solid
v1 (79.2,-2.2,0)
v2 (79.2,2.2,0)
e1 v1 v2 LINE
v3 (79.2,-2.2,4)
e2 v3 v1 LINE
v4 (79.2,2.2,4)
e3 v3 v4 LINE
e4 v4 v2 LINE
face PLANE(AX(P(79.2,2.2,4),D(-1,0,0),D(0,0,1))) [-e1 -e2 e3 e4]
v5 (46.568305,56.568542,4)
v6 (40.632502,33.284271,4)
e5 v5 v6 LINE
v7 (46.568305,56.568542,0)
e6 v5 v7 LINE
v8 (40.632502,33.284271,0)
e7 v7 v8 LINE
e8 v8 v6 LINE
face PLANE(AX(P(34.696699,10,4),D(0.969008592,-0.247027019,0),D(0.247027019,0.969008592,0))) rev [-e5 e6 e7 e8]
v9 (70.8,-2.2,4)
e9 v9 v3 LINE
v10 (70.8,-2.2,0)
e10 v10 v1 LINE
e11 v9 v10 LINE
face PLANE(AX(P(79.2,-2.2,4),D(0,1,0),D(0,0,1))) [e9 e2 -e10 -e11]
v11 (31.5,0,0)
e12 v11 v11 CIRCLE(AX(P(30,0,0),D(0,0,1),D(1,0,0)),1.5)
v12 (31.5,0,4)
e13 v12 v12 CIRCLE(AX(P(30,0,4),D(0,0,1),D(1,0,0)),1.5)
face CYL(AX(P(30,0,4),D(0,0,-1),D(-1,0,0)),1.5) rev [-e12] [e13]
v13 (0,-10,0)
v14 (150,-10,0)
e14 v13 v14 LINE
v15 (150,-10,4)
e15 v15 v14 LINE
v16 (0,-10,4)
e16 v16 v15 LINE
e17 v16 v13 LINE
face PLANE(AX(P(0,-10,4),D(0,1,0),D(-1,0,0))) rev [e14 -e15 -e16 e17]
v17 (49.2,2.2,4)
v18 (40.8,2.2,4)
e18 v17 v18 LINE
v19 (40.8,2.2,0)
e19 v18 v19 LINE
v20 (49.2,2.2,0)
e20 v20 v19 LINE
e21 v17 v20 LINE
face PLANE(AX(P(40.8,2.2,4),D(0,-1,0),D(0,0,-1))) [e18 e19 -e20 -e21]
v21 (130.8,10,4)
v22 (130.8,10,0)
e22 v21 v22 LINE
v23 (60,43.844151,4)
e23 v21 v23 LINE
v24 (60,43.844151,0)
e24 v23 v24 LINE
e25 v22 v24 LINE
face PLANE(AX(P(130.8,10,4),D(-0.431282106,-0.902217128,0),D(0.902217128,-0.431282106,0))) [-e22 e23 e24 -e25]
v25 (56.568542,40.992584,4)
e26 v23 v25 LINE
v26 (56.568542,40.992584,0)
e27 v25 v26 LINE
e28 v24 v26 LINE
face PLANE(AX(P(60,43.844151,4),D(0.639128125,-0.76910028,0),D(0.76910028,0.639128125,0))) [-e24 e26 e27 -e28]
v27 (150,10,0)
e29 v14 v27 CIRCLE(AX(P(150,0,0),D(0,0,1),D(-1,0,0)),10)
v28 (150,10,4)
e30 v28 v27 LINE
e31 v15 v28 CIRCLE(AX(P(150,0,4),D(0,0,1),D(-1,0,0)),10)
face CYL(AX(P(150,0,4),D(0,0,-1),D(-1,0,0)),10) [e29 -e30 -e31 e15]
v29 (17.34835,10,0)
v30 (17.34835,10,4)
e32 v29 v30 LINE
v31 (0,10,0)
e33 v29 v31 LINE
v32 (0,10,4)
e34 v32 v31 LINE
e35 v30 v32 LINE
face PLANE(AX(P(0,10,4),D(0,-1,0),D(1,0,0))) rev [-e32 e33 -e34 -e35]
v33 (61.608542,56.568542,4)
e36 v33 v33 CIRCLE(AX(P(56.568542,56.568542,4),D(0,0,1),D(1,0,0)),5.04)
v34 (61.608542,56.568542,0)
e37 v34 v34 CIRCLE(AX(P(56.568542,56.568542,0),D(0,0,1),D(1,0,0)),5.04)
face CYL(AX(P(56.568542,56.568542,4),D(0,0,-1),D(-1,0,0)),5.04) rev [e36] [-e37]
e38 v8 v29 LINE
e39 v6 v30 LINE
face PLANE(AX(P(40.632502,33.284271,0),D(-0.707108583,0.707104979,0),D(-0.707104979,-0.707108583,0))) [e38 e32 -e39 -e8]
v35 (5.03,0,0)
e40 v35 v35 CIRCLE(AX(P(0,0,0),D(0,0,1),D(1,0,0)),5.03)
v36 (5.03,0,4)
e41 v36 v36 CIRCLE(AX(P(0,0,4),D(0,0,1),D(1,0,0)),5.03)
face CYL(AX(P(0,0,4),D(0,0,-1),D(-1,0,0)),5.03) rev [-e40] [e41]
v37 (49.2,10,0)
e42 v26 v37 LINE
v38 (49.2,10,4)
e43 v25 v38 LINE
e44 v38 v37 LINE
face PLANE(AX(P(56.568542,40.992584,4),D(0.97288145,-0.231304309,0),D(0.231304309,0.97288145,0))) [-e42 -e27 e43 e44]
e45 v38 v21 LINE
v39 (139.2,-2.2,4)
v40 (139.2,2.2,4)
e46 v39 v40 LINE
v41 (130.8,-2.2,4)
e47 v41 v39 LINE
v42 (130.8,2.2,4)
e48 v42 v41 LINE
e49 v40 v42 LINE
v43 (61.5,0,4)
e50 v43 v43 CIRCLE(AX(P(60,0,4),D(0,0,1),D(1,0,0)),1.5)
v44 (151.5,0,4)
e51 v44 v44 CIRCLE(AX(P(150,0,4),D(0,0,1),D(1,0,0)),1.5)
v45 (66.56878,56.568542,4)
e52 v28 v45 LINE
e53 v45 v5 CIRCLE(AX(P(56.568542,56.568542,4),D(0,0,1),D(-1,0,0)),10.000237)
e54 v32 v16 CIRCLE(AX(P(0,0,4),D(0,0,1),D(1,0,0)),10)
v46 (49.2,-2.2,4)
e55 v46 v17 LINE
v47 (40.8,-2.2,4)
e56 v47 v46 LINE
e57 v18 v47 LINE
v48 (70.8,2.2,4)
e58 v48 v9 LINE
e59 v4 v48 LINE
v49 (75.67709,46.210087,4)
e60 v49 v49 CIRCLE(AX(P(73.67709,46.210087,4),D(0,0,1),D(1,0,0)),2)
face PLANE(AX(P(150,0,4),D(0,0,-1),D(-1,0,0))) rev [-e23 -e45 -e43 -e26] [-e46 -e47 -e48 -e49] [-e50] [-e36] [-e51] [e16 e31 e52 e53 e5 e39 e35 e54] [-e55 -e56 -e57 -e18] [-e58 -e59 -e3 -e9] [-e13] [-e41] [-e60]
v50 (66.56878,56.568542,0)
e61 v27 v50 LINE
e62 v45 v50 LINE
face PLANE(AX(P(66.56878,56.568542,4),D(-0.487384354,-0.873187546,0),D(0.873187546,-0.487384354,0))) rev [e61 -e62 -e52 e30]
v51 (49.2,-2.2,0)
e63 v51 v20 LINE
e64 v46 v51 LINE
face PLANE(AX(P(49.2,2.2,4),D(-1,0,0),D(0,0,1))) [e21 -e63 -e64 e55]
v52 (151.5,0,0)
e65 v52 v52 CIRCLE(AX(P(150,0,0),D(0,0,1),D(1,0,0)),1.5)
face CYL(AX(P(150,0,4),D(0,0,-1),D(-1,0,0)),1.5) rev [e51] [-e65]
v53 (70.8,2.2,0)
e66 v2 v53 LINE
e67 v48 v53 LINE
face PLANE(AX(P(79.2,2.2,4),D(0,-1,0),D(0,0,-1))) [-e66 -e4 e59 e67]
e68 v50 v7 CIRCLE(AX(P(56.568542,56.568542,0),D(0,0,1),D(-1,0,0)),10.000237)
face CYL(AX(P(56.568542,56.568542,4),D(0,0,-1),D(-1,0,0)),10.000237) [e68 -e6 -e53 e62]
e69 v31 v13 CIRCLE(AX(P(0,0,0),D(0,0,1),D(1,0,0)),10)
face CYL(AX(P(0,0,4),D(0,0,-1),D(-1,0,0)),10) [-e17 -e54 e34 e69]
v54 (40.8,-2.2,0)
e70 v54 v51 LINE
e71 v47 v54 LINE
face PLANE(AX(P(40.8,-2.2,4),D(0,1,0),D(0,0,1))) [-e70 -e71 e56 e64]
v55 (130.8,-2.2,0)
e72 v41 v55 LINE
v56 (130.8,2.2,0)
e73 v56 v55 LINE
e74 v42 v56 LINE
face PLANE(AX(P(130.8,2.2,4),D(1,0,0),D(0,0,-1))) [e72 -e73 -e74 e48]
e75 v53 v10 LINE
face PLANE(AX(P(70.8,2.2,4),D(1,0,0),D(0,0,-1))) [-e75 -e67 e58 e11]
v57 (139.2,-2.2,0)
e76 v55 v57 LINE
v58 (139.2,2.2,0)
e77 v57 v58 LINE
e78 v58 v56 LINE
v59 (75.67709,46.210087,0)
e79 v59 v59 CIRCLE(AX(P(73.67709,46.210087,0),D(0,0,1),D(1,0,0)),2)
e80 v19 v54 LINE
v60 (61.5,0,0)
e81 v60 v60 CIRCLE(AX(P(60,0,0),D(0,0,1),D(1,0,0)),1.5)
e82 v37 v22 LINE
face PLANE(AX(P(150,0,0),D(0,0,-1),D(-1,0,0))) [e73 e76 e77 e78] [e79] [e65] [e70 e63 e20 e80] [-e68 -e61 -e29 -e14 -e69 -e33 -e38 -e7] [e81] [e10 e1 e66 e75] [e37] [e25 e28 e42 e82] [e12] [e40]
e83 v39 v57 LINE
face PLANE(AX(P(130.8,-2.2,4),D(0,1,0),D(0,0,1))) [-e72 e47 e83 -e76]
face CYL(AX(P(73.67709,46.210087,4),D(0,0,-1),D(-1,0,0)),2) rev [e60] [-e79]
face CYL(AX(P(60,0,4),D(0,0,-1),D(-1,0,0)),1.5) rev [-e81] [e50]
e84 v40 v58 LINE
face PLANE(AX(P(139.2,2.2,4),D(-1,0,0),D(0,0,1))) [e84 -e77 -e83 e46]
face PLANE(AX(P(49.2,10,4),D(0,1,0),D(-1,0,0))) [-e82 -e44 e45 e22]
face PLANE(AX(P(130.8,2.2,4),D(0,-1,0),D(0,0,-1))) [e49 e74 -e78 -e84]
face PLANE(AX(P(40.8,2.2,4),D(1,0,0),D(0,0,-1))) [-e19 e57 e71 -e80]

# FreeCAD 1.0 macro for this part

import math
import FreeCAD as App
import Part
import Sketcher
Q = App.Units.Quantity

doc = App.newDocument("Part")
body = doc.addObject("PartDesign::Body", "Body")

# Sketch on XY plane
sketch1 = body.newObject("Sketcher::SketchObject", "Sketch")
sketch1.AttachmentSupport = (doc.getObject("XY_Plane"), [""])
sketch1.MapMode = "FlatFace"
sketch1.addGeometry([
    Part.LineSegment(App.Vector(34.696699, 10, 0), App.Vector(0, 10, 0)),  # 0
    Part.ArcOfCircle(Part.Circle(App.Vector(0, 0, 0), App.Vector(0, 0, 1), 10), math.radians(90), math.radians(270)),  # 1
    Part.LineSegment(App.Vector(0, -10, 0), App.Vector(150, -10, 0)),  # 2
    Part.ArcOfCircle(Part.Circle(App.Vector(150, 0, 0), App.Vector(0, 0, 1), 10), math.radians(-90), math.radians(90)),  # 3
    Part.LineSegment(App.Vector(150, 10, 0), App.Vector(66.56878, 56.568542, 0)),  # 4
    Part.ArcOfCircle(Part.Circle(App.Vector(56.568542, 56.568542, 0), App.Vector(0, 0, 1), 10.000237), math.radians(0), math.radians(180)),  # 5
    Part.LineSegment(App.Vector(46.568305, 56.568542, 0), App.Vector(34.696699, 10, 0)),  # 6
    Part.Circle(App.Vector(150, 0, 0), App.Vector(0, 0, 1), 1.5),  # 7
    Part.LineSegment(App.Vector(130.8, -2.2, 0), App.Vector(130.8, 2.2, 0)),  # 8
    Part.LineSegment(App.Vector(130.8, 2.2, 0), App.Vector(139.2, 2.2, 0)),  # 9
    Part.LineSegment(App.Vector(139.2, 2.2, 0), App.Vector(139.2, -2.2, 0)),  # 10
    Part.LineSegment(App.Vector(139.2, -2.2, 0), App.Vector(130.8, -2.2, 0)),  # 11
    Part.LineSegment(App.Vector(70.8, -2.2, 0), App.Vector(70.8, 2.2, 0)),  # 12
    Part.LineSegment(App.Vector(70.8, 2.2, 0), App.Vector(79.2, 2.2, 0)),  # 13
    Part.LineSegment(App.Vector(79.2, 2.2, 0), App.Vector(79.2, -2.2, 0)),  # 14
    Part.LineSegment(App.Vector(79.2, -2.2, 0), App.Vector(70.8, -2.2, 0)),  # 15
    Part.LineSegment(App.Vector(56.568542, 40.992584, 0), App.Vector(60, 43.844151, 0)),  # 16
    Part.LineSegment(App.Vector(60, 43.844151, 0), App.Vector(130.8, 10, 0)),  # 17
    Part.LineSegment(App.Vector(130.8, 10, 0), App.Vector(49.2, 10, 0)),  # 18
    Part.LineSegment(App.Vector(49.2, 10, 0), App.Vector(56.568542, 40.992584, 0)),  # 19
    Part.Circle(App.Vector(60, 0, 0), App.Vector(0, 0, 1), 1.5),  # 20
    Part.LineSegment(App.Vector(40.8, -2.2, 0), App.Vector(40.8, 2.2, 0)),  # 21
    Part.LineSegment(App.Vector(40.8, 2.2, 0), App.Vector(49.2, 2.2, 0)),  # 22
    Part.LineSegment(App.Vector(49.2, 2.2, 0), App.Vector(49.2, -2.2, 0)),  # 23
    Part.LineSegment(App.Vector(49.2, -2.2, 0), App.Vector(40.8, -2.2, 0)),  # 24
    Part.Circle(App.Vector(30, 0, 0), App.Vector(0, 0, 1), 1.5),  # 25
    Part.Circle(App.Vector(0, 0, 0), App.Vector(0, 0, 1), 5.03),  # 26
    Part.Circle(App.Vector(73.67709, 46.210087, 0), App.Vector(0, 0, 1), 2),  # 27
    Part.Circle(App.Vector(56.568542, 56.568542, 0), App.Vector(0, 0, 1), 5.04),  # 28
], False)
sketch1.addConstraint([
    Sketcher.Constraint("Tangent", 0, 2, 1, 1),
    Sketcher.Constraint("Tangent", 1, 2, 2, 1),
    Sketcher.Constraint("Tangent", 2, 2, 3, 1),
    Sketcher.Constraint("Coincident", 3, 2, 4, 1),
    Sketcher.Constraint("Coincident", 4, 2, 5, 1),
    Sketcher.Constraint("Coincident", 5, 2, 6, 1),
    Sketcher.Constraint("Coincident", 6, 2, 0, 1),
    Sketcher.Constraint("Coincident", 8, 2, 9, 1),
    Sketcher.Constraint("Coincident", 9, 2, 10, 1),
    Sketcher.Constraint("Coincident", 10, 2, 11, 1),
    Sketcher.Constraint("Coincident", 11, 2, 8, 1),
    Sketcher.Constraint("Coincident", 12, 2, 13, 1),
    Sketcher.Constraint("Coincident", 13, 2, 14, 1),
    Sketcher.Constraint("Coincident", 14, 2, 15, 1),
    Sketcher.Constraint("Coincident", 15, 2, 12, 1),
    Sketcher.Constraint("Coincident", 16, 2, 17, 1),
    Sketcher.Constraint("Coincident", 17, 2, 18, 1),
    Sketcher.Constraint("Coincident", 18, 2, 19, 1),
    Sketcher.Constraint("Coincident", 19, 2, 16, 1),
    Sketcher.Constraint("Coincident", 21, 2, 22, 1),
    Sketcher.Constraint("Coincident", 22, 2, 23, 1),
    Sketcher.Constraint("Coincident", 23, 2, 24, 1),
    Sketcher.Constraint("Coincident", 24, 2, 21, 1),
    Sketcher.Constraint("Horizontal", 0),
    Sketcher.Constraint("Horizontal", 2),
    Sketcher.Constraint("Vertical", 8),
    Sketcher.Constraint("Horizontal", 9),
    Sketcher.Constraint("Vertical", 10),
    Sketcher.Constraint("Horizontal", 11),
    Sketcher.Constraint("Vertical", 12),
    Sketcher.Constraint("Horizontal", 13),
    Sketcher.Constraint("Vertical", 14),
    Sketcher.Constraint("Horizontal", 15),
    Sketcher.Constraint("Horizontal", 18),
    Sketcher.Constraint("Vertical", 21),
    Sketcher.Constraint("Horizontal", 22),
    Sketcher.Constraint("Vertical", 23),
    Sketcher.Constraint("Horizontal", 24),
    Sketcher.Constraint("Coincident", 1, 3, -1, 1),
    Sketcher.Constraint("Coincident", 26, 3, -1, 1),
    Sketcher.Constraint("Coincident", 7, 3, 3, 3),
    Sketcher.Constraint("Coincident", 28, 3, 5, 3),
    Sketcher.Constraint("Equal", 1, 3),
    Sketcher.Constraint("Equal", 7, 20),
    Sketcher.Constraint("Equal", 20, 25),
    Sketcher.Constraint("PointOnObject", 20, 3, -1),
    Sketcher.Constraint("PointOnObject", 25, 3, -1),
    Sketcher.Constraint("Horizontal", 28, 3, 4, 2),
    Sketcher.Constraint("Horizontal", 4, 2, 5, 2),
    Sketcher.Constraint("Horizontal", 9, 2, 12, 2),
    Sketcher.Constraint("Horizontal", 11, 2, 14, 2),
    Sketcher.Constraint("Horizontal", 6, 2, 17, 2),
    Sketcher.Constraint("Horizontal", 13, 2, 21, 2),
    Sketcher.Constraint("Horizontal", 15, 2, 23, 2),
    Sketcher.Constraint("Vertical", 2, 2, 3, 2),
    Sketcher.Constraint("Vertical", 20, 3, 16, 2),
    Sketcher.Constraint("Vertical", 11, 2, 17, 2),
    Sketcher.Constraint("Vertical", 28, 3, 19, 2),
    Sketcher.Constraint("Vertical", 18, 2, 22, 2),
    Sketcher.Constraint("Equal", 11, 13),
    Sketcher.Constraint("Equal", 15, 22),
    Sketcher.Constraint("Diameter", 7, Q("3 mm")),
    Sketcher.Constraint("Diameter", 27, Q("4 mm")),
    Sketcher.Constraint("Radius", 1, Q("10 mm")),
    Sketcher.Constraint("Diameter", 26, Q("10.06 mm")),
    Sketcher.Constraint("Diameter", 28, Q("10.08 mm")),
    Sketcher.Constraint("DistanceX", 2, 1, 2, 2, Q("150 mm")),
    Sketcher.Constraint("DistanceX", 9, 1, 9, 2, Q("8.4 mm")),
    Sketcher.Constraint("DistanceX", 18, 2, 18, 1, Q("81.6 mm")),
    Sketcher.Constraint("DistanceY", 8, 1, 8, 2, Q("4.4 mm")),
    Sketcher.Constraint("DistanceX", -1, 1, 20, 3, Q("60 mm")),
    Sketcher.Constraint("DistanceX", -1, 1, 25, 3, Q("30 mm")),
    Sketcher.Constraint("DistanceX", 21, 2, 12, 2, Q("30 mm")),
    Sketcher.Constraint("DistanceX", -1, 1, 8, 2, Q("130.8 mm")),
    Sketcher.Constraint("DistanceY", -1, 1, 8, 2, Q("2.2 mm")),
    Sketcher.Constraint("DistanceX", 0, 2, 0, 1, Q("34.696699 mm")),
    Sketcher.Constraint("Radius", 5, Q("10.000237 mm")),
    Sketcher.Constraint("Distance", 4, Q("95.547881 mm")),
    Sketcher.Constraint("Distance", 16, Q("4.461652 mm")),
    Sketcher.Constraint("Distance", 17, Q("78.47335 mm")),
    Sketcher.Constraint("DistanceX", -1, 1, 27, 3, Q("73.67709 mm")),
    Sketcher.Constraint("DistanceX", -1, 1, 4, 2, Q("66.56878 mm")),
    Sketcher.Constraint("DistanceY", -1, 1, 27, 3, Q("46.210087 mm")),
])
pad1 = body.newObject("PartDesign::Pad", "Pad")
pad1.Profile = sketch1
pad1.Length = 4

# Sketch on XY plane
sketch2 = body.newObject("Sketcher::SketchObject", "Sketch001")
sketch2.AttachmentSupport = (doc.getObject("XY_Plane"), [""])
sketch2.MapMode = "FlatFace"
sketch2.AttachmentOffset = App.Placement(App.Vector(0, 0, 4), App.Rotation())
sketch2.addGeometry([
    Part.LineSegment(App.Vector(34.696699, 10, 0), App.Vector(40.632502, 33.284271, 0)),
    Part.LineSegment(App.Vector(40.632502, 33.284271, 0), App.Vector(17.34835, 10, 0)),
    Part.LineSegment(App.Vector(17.34835, 10, 0), App.Vector(34.696699, 10, 0)),
], False)
sketch2.addConstraint([
    Sketcher.Constraint("Coincident", 0, 2, 1, 1),
    Sketcher.Constraint("Coincident", 1, 2, 2, 1),
    Sketcher.Constraint("Coincident", 2, 2, 0, 1),
    Sketcher.Constraint("Horizontal", 2),
    Sketcher.Constraint("DistanceY", -1, 1, 1, 2, Q("10 mm")),
    Sketcher.Constraint("DistanceX", 2, 1, 2, 2, Q("17.34835 mm")),
    Sketcher.Constraint("DistanceX", -1, 1, 2, 2, Q("34.696699 mm")),
    Sketcher.Constraint("Distance", 1, Q("32.928848 mm")),
    Sketcher.Constraint("DistanceY", -1, 1, 0, 2, Q("33.284271 mm")),
])
pad2 = body.newObject("PartDesign::Pad", "Pad001")
pad2.Profile = sketch2
pad2.Length = 4
pad2.Reversed = True

doc.recompute()
